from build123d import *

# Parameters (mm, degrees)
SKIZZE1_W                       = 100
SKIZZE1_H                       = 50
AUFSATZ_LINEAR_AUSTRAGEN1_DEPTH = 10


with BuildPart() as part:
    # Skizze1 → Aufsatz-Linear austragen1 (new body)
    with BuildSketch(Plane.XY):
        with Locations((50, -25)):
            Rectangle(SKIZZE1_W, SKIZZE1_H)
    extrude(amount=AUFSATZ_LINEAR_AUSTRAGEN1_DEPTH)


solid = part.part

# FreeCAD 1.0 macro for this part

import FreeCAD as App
import Part
import Sketcher
from FreeCAD import Vector
Q = App.Units.Quantity

doc = App.newDocument("Part")
body = doc.addObject("PartDesign::Body", "Body")

# Sketch on XY plane
sketch1 = body.newObject("Sketcher::SketchObject", "Sketch")
sketch1.AttachmentSupport = (doc.getObject("XY_Plane"), [""])
sketch1.MapMode = "FlatFace"
sketch1.addGeometry([
    Part.LineSegment(Vector(0, 0, 0), Vector(0, -50, 0)),
    Part.LineSegment(Vector(0, -50, 0), Vector(100, -50, 0)),
    Part.LineSegment(Vector(100, -50, 0), Vector(100, 0, 0)),
    Part.LineSegment(Vector(100, 0, 0), Vector(0, 0, 0)),
], False)
sketch1.addConstraint([
    Sketcher.Constraint("Coincident", 0, 2, 1, 1),
    Sketcher.Constraint("Coincident", 1, 2, 2, 1),
    Sketcher.Constraint("Coincident", 2, 2, 3, 1),
    Sketcher.Constraint("Coincident", 3, 2, 0, 1),
    Sketcher.Constraint("Vertical", 0),
    Sketcher.Constraint("Horizontal", 1),
    Sketcher.Constraint("Vertical", 2),
    Sketcher.Constraint("Horizontal", 3),
    Sketcher.Constraint("Coincident", 3, 2, -1, 1),
    Sketcher.Constraint("DistanceX", 1, 1, 1, 2, Q("100 mm")),
    Sketcher.Constraint("DistanceY", 0, 2, 0, 1, Q("50 mm")),
])
pad1 = body.newObject("PartDesign::Pad", "Pad")
pad1.Profile = sketch1
pad1.Length = 10

doc.recompute()
